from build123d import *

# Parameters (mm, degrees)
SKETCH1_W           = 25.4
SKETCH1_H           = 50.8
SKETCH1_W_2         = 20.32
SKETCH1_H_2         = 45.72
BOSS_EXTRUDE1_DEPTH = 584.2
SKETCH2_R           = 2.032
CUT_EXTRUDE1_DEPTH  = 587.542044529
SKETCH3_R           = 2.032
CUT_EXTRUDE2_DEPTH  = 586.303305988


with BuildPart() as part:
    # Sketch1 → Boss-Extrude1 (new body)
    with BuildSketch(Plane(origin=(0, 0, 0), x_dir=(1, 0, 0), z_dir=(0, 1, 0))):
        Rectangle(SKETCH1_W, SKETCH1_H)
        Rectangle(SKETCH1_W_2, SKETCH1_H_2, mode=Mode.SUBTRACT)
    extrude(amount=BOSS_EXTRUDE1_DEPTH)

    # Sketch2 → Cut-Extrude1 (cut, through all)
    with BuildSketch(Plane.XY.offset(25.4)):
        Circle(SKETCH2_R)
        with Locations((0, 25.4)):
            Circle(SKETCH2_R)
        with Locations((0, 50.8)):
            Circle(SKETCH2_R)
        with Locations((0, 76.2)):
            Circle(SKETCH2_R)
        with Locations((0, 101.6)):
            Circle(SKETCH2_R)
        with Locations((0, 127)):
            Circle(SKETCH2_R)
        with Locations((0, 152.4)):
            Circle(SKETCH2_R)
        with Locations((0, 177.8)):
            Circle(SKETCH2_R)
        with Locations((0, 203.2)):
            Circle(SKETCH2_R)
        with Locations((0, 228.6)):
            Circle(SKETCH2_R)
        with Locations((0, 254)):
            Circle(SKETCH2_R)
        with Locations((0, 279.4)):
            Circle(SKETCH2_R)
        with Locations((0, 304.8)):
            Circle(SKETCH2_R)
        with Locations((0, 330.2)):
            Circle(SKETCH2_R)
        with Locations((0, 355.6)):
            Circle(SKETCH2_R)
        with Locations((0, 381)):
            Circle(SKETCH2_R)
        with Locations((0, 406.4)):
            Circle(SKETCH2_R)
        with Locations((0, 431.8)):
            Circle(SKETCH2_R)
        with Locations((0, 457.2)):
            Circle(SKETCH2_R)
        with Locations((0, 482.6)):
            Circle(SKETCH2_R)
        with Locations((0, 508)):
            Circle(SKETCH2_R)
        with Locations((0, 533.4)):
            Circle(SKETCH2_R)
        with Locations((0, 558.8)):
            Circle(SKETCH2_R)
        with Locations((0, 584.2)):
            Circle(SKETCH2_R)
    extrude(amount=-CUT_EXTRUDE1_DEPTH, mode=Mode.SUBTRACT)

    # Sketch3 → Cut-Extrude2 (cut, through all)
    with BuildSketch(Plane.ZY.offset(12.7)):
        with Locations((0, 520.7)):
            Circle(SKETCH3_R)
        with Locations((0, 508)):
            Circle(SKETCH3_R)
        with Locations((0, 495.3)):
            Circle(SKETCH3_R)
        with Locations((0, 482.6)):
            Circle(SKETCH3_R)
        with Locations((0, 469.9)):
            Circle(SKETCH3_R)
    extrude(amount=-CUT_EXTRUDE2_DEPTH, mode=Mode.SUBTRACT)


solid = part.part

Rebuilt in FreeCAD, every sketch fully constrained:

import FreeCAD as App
import Part
import Sketcher

V = App.Vector
Q = App.Units.Quantity

doc = App.newDocument("Part")
body = doc.addObject("PartDesign::Body", "Body")

sketch1 = doc.addObject("Sketcher::SketchObject", "Sketch")
body.addObject(sketch1)
sketch1.AttachmentSupport = (doc.XZ_Plane, [""])
sketch1.MapMode = "FlatFace"
sketch1.addGeometry([
    Part.LineSegment(V(-13, -25, 0), V(-13, 25, 0)),
    Part.LineSegment(V(-13, 25, 0), V(13, 25, 0)),
    Part.LineSegment(V(13, 25, 0), V(13, -25, 0)),
    Part.LineSegment(V(13, -25, 0), V(-13, -25, 0)),
    Part.LineSegment(V(10, 23, 0), V(-10, 23, 0)),
    Part.LineSegment(V(-10, 23, 0), V(-10, -23, 0)),
    Part.LineSegment(V(-10, -23, 0), V(10, -23, 0)),
    Part.LineSegment(V(10, -23, 0), V(10, 23, 0)),
], False)
sketch1.addConstraint([
    Sketcher.Constraint("Coincident", 0, 2, 1, 1),
    Sketcher.Constraint("Coincident", 1, 2, 2, 1),
    Sketcher.Constraint("Coincident", 2, 2, 3, 1),
    Sketcher.Constraint("Coincident", 3, 2, 0, 1),
    Sketcher.Constraint("Coincident", 4, 2, 5, 1),
    Sketcher.Constraint("Coincident", 5, 2, 6, 1),
    Sketcher.Constraint("Coincident", 6, 2, 7, 1),
    Sketcher.Constraint("Coincident", 7, 2, 4, 1),
    Sketcher.Constraint("Vertical", 0),
    Sketcher.Constraint("Horizontal", 1),
    Sketcher.Constraint("Vertical", 2),
    Sketcher.Constraint("Horizontal", 3),
    Sketcher.Constraint("Horizontal", 4),
    Sketcher.Constraint("Vertical", 5),
    Sketcher.Constraint("Horizontal", 6),
    Sketcher.Constraint("Vertical", 7),
    Sketcher.Constraint("Symmetric", 0, 2, 2, 2, -1, 1),
    Sketcher.Constraint("Symmetric", 4, 2, 6, 2, -1, 1),
    Sketcher.Constraint("DistanceX", 1, 1, 1, 2, Q("1 in")),
    Sketcher.Constraint("DistanceY", 0, 1, 0, 2, Q("2 in")),
    Sketcher.Constraint("DistanceX", 4, 2, 4, 1, Q("0.8 in")),
    Sketcher.Constraint("DistanceY", 5, 2, 5, 1, Q("1.8 in")),
])
pad1 = doc.addObject("PartDesign::Pad", "Pad")
body.addObject(pad1)
pad1.Profile = sketch1
pad1.Length = Q("23 in")
pad1.Reversed = True

sketch2 = doc.addObject("Sketcher::SketchObject", "Sketch001")
body.addObject(sketch2)
sketch2.AttachmentSupport = (doc.XY_Plane, [""])
sketch2.MapMode = "FlatFace"
sketch2.AttachmentOffset = App.Placement(V(0, 0, 1 * 25.4), App.Rotation())
sketch2.addGeometry([
    Part.Circle(V(0, 0, 0), V(0, 0, 1), 2),
    Part.Circle(V(0, 25.4, 0), V(0, 0, 1), 2),
    Part.Circle(V(0, 50.8, 0), V(0, 0, 1), 2),
    Part.Circle(V(0, 76.2, 0), V(0, 0, 1), 2),
    Part.Circle(V(0, 101.6, 0), V(0, 0, 1), 2),
    Part.Circle(V(0, 127, 0), V(0, 0, 1), 2),
    Part.Circle(V(0, 152.4, 0), V(0, 0, 1), 2),
    Part.Circle(V(0, 177.8, 0), V(0, 0, 1), 2),
    Part.Circle(V(0, 203.2, 0), V(0, 0, 1), 2),
    Part.Circle(V(0, 228.6, 0), V(0, 0, 1), 2),
    Part.Circle(V(0, 254, 0), V(0, 0, 1), 2),
    Part.Circle(V(0, 279.4, 0), V(0, 0, 1), 2),
    Part.Circle(V(0, 304.8, 0), V(0, 0, 1), 2),
    Part.Circle(V(0, 330.2, 0), V(0, 0, 1), 2),
    Part.Circle(V(0, 355.6, 0), V(0, 0, 1), 2),
    Part.Circle(V(0, 381, 0), V(0, 0, 1), 2),
    Part.Circle(V(0, 406.4, 0), V(0, 0, 1), 2),
    Part.Circle(V(0, 431.8, 0), V(0, 0, 1), 2),
    Part.Circle(V(0, 457.2, 0), V(0, 0, 1), 2),
    Part.Circle(V(0, 482.6, 0), V(0, 0, 1), 2),
    Part.Circle(V(0, 508, 0), V(0, 0, 1), 2),
    Part.Circle(V(0, 533.4, 0), V(0, 0, 1), 2),
    Part.Circle(V(0, 558.8, 0), V(0, 0, 1), 2),
    Part.Circle(V(0, 584.2, 0), V(0, 0, 1), 2),
], False)
sketch2.addConstraint([
    Sketcher.Constraint("Coincident", 0, 3, -1, 1),
    Sketcher.Constraint("Equal", 0, 1),
    Sketcher.Constraint("Equal", 1, 2),
    Sketcher.Constraint("Equal", 2, 3),
    Sketcher.Constraint("Equal", 3, 4),
    Sketcher.Constraint("Equal", 4, 5),
    Sketcher.Constraint("Equal", 5, 6),
    Sketcher.Constraint("Equal", 6, 7),
    Sketcher.Constraint("Equal", 7, 8),
    Sketcher.Constraint("Equal", 8, 9),
    Sketcher.Constraint("Equal", 9, 10),
    Sketcher.Constraint("Equal", 10, 11),
    Sketcher.Constraint("Equal", 11, 12),
    Sketcher.Constraint("Equal", 12, 13),
    Sketcher.Constraint("Equal", 13, 14),
    Sketcher.Constraint("Equal", 14, 15),
    Sketcher.Constraint("Equal", 15, 16),
    Sketcher.Constraint("Equal", 16, 17),
    Sketcher.Constraint("Equal", 17, 18),
    Sketcher.Constraint("Equal", 18, 19),
    Sketcher.Constraint("Equal", 19, 20),
    Sketcher.Constraint("Equal", 20, 21),
    Sketcher.Constraint("Equal", 21, 22),
    Sketcher.Constraint("Equal", 22, 23),
    Sketcher.Constraint("PointOnObject", 1, 3, -2),
    Sketcher.Constraint("PointOnObject", 2, 3, -2),
    Sketcher.Constraint("PointOnObject", 3, 3, -2),
    Sketcher.Constraint("PointOnObject", 4, 3, -2),
    Sketcher.Constraint("PointOnObject", 5, 3, -2),
    Sketcher.Constraint("PointOnObject", 6, 3, -2),
    Sketcher.Constraint("PointOnObject", 7, 3, -2),
    Sketcher.Constraint("PointOnObject", 8, 3, -2),
    Sketcher.Constraint("PointOnObject", 9, 3, -2),
    Sketcher.Constraint("PointOnObject", 10, 3, -2),
    Sketcher.Constraint("PointOnObject", 11, 3, -2),
    Sketcher.Constraint("PointOnObject", 12, 3, -2),
    Sketcher.Constraint("PointOnObject", 13, 3, -2),
    Sketcher.Constraint("PointOnObject", 14, 3, -2),
    Sketcher.Constraint("PointOnObject", 15, 3, -2),
    Sketcher.Constraint("PointOnObject", 16, 3, -2),
    Sketcher.Constraint("PointOnObject", 17, 3, -2),
    Sketcher.Constraint("PointOnObject", 18, 3, -2),
    Sketcher.Constraint("PointOnObject", 19, 3, -2),
    Sketcher.Constraint("PointOnObject", 20, 3, -2),
    Sketcher.Constraint("PointOnObject", 21, 3, -2),
    Sketcher.Constraint("PointOnObject", 22, 3, -2),
    Sketcher.Constraint("PointOnObject", 23, 3, -2),
    Sketcher.Constraint("Diameter", 0, Q("0.16 in")),
    Sketcher.Constraint("DistanceY", -1, 1, 1, 3, Q("1 in")),
    Sketcher.Constraint("DistanceY", -1, 1, 2, 3, Q("2 in")),
    Sketcher.Constraint("DistanceY", -1, 1, 3, 3, Q("3 in")),
    Sketcher.Constraint("DistanceY", -1, 1, 4, 3, Q("4 in")),
    Sketcher.Constraint("DistanceY", -1, 1, 5, 3, Q("5 in")),
    Sketcher.Constraint("DistanceY", -1, 1, 6, 3, Q("6 in")),
    Sketcher.Constraint("DistanceY", -1, 1, 7, 3, Q("7 in")),
    Sketcher.Constraint("DistanceY", -1, 1, 8, 3, Q("8 in")),
    Sketcher.Constraint("DistanceY", -1, 1, 9, 3, Q("9 in")),
    Sketcher.Constraint("DistanceY", -1, 1, 10, 3, Q("10 in")),
    Sketcher.Constraint("DistanceY", -1, 1, 11, 3, Q("11 in")),
    Sketcher.Constraint("DistanceY", -1, 1, 12, 3, Q("12 in")),
    Sketcher.Constraint("DistanceY", -1, 1, 13, 3, Q("13 in")),
    Sketcher.Constraint("DistanceY", -1, 1, 14, 3, Q("14 in")),
    Sketcher.Constraint("DistanceY", -1, 1, 15, 3, Q("15 in")),
    Sketcher.Constraint("DistanceY", -1, 1, 16, 3, Q("16 in")),
    Sketcher.Constraint("DistanceY", -1, 1, 17, 3, Q("17 in")),
    Sketcher.Constraint("DistanceY", -1, 1, 18, 3, Q("18 in")),
    Sketcher.Constraint("DistanceY", -1, 1, 19, 3, Q("19 in")),
    Sketcher.Constraint("DistanceY", -1, 1, 20, 3, Q("20 in")),
    Sketcher.Constraint("DistanceY", -1, 1, 21, 3, Q("21 in")),
    Sketcher.Constraint("DistanceY", -1, 1, 22, 3, Q("22 in")),
    Sketcher.Constraint("DistanceY", -1, 1, 23, 3, Q("23 in")),
])
pocket1 = doc.addObject("PartDesign::Pocket", "Pocket")
body.addObject(pocket1)
pocket1.Profile = sketch2
pocket1.Type = "ThroughAll"

sketch3 = doc.addObject("Sketcher::SketchObject", "Sketch002")
body.addObject(sketch3)
sketch3.AttachmentSupport = (doc.YZ_Plane, [""])
sketch3.MapMode = "FlatFace"
sketch3.AttachmentOffset = App.Placement(V(0, 0, -0.5 * 25.4), App.Rotation())
sketch3.addGeometry([
    Part.Circle(V(520.7, 0, 0), V(0, 0, 1), 2),
    Part.Circle(V(508, 0, 0), V(0, 0, 1), 2),
    Part.Circle(V(495.3, 0, 0), V(0, 0, 1), 2),
    Part.Circle(V(482.6, 0, 0), V(0, 0, 1), 2),
    Part.Circle(V(469.9, 0, 0), V(0, 0, 1), 2),
], False)
sketch3.addConstraint([
    Sketcher.Constraint("Equal", 0, 1),
    Sketcher.Constraint("Equal", 1, 2),
    Sketcher.Constraint("Equal", 2, 3),
    Sketcher.Constraint("Equal", 3, 4),
    Sketcher.Constraint("PointOnObject", 0, 3, -1),
    Sketcher.Constraint("PointOnObject", 1, 3, -1),
    Sketcher.Constraint("PointOnObject", 2, 3, -1),
    Sketcher.Constraint("PointOnObject", 3, 3, -1),
    Sketcher.Constraint("PointOnObject", 4, 3, -1),
    Sketcher.Constraint("Diameter", 0, Q("0.16 in")),
    Sketcher.Constraint("DistanceX", -1, 1, 1, 3, Q("20 in")),
    Sketcher.Constraint("DistanceX", -1, 1, 3, 3, Q("19 in")),
    Sketcher.Constraint("DistanceX", 2, 3, 0, 3, Q("1 in")),
    Sketcher.Constraint("DistanceX", 4, 3, 2, 3, Q("1 in")),
    Sketcher.Constraint("DistanceX", -1, 1, 0, 3, Q("20.5 in")),
])
pocket2 = doc.addObject("PartDesign::Pocket", "Pocket001")
body.addObject(pocket2)
pocket2.Profile = sketch3
pocket2.Type = "ThroughAll"
pocket2.Reversed = True

doc.recompute()
